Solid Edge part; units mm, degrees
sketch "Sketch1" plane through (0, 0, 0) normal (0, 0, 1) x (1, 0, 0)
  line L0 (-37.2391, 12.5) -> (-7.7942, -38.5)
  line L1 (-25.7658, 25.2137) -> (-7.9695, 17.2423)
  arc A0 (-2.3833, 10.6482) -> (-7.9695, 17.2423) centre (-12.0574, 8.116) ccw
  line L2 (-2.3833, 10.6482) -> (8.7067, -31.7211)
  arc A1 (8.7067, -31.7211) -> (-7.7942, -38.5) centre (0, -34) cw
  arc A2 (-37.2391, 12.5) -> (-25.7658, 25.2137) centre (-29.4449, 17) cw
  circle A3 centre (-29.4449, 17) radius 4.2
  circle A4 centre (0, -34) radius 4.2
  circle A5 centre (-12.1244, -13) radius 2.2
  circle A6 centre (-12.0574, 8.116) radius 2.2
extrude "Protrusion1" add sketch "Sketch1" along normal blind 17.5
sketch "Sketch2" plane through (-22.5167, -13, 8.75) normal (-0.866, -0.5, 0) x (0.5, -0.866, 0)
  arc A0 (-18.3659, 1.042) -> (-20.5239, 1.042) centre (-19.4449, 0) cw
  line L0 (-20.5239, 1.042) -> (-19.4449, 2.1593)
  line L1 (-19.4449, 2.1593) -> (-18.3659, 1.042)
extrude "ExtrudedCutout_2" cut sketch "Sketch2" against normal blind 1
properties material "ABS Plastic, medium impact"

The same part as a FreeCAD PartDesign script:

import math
import FreeCAD as App
import Part
import Sketcher
from FreeCAD import Vector
Q = App.Units.Quantity

doc = App.newDocument("Part")
params = doc.addObject("Spreadsheet::Sheet", "Params")
for row, (alias, value) in enumerate([
    ("sketch1_radius", "9 mm"),
    ("sketch1_radius2", "10 mm"),
    ("sketch1_diameter", "8.4 mm"),
    ("sketch1_diameter2", "4.4 mm"),
    ("sketch1_length", "19.5 mm"),
    ("pad1_length", "17.5 mm"),
    ("sketch2_radius", "1.5 mm"),
    ("pocket1_length", "1 mm"),
], start=1):
    params.set(f"A{row}", alias)
    params.set(f"B{row}", "=" + value)
    params.setAlias(f"B{row}", alias)

body = doc.addObject("PartDesign::Body", "Body")

sketch1 = doc.addObject("Sketcher::SketchObject", "Sketch")
body.addObject(sketch1)
sketch1.AttachmentSupport = (doc.XY_Plane, [""])
sketch1.MapMode = "FlatFace"
sketch1.addGeometry([
    Part.ArcOfCircle(Part.Circle(Vector(-29.4, 17, 0), Vector(0, 0, 1), 9), math.radians(66), math.radians(210)),
    Part.LineSegment(Vector(-37.2, 12.5, 0), Vector(-7.8, -38.5, 0)),
    Part.ArcOfCircle(Part.Circle(Vector(0, -34, 0), Vector(0, 0, 1), 9), math.radians(-150), math.radians(15)),
    Part.LineSegment(Vector(8.7, -31.7, 0), Vector(-2.4, 10.6, 0)),
    Part.ArcOfCircle(Part.Circle(Vector(-12.1, 8.1, 0), Vector(0, 0, 1), 10), math.radians(15), math.radians(66)),
    Part.LineSegment(Vector(-8, 17.2, 0), Vector(-25.8, 25.2, 0)),
    Part.Circle(Vector(0, -34, 0), Vector(0, 0, 1), 4.2),
    Part.Circle(Vector(-12.1, -13, 0), Vector(0, 0, 1), 2.2),
    Part.Circle(Vector(-29.4, 17, 0), Vector(0, 0, 1), 4.2),
    Part.Circle(Vector(-12.1, 8.1, 0), Vector(0, 0, 1), 2.2),
], False)
sketch1.addConstraint([
    Sketcher.Constraint("Tangent", 0, 2, 1, 1),
    Sketcher.Constraint("Tangent", 1, 2, 2, 1),
    Sketcher.Constraint("Tangent", 2, 2, 3, 1),
    Sketcher.Constraint("Tangent", 3, 2, 4, 1),
    Sketcher.Constraint("Tangent", 4, 2, 5, 1),
    Sketcher.Constraint("Tangent", 5, 2, 0, 1),
    Sketcher.Constraint("Coincident", 6, 3, 2, 3),
    Sketcher.Constraint("Coincident", 8, 3, 0, 3),
    Sketcher.Constraint("Coincident", 9, 3, 4, 3),
    Sketcher.Constraint("Equal", 0, 2),
    Sketcher.Constraint("Equal", 6, 8),
    Sketcher.Constraint("Equal", 7, 9),
    Sketcher.Constraint("PointOnObject", 2, 3, -2),
    Sketcher.Constraint("Radius", 0, Q("9 mm")),
    Sketcher.Constraint("Radius", 4, Q("10 mm")),
    Sketcher.Constraint("Diameter", 6, Q("8.4 mm")),
    Sketcher.Constraint("Diameter", 7, Q("4.4 mm")),
    Sketcher.Constraint("Angle", 1, Q("-60 deg")),
    Sketcher.Constraint("DistanceY", -1, 1, 0, 3, Q("17 mm")),
    Sketcher.Constraint("DistanceY", 2, 3, -1, 1, Q("34 mm")),
    Sketcher.Constraint("DistanceY", 7, 3, -1, 1, Q("13 mm")),
    Sketcher.Constraint("Distance", 5, Q("19.5 mm")),
    Sketcher.Constraint("DistanceY", -1, 1, 4, 3, Q("8.116 mm")),
    Sketcher.Constraint("DistanceX", 7, 3, 4, 3, Q("0.067 mm")),
])
sketch1.setExpression("Constraints[13]", "Params.sketch1_radius")
sketch1.setExpression("Constraints[14]", "Params.sketch1_radius2")
sketch1.setExpression("Constraints[15]", "Params.sketch1_diameter")
sketch1.setExpression("Constraints[16]", "Params.sketch1_diameter2")
sketch1.setExpression("Constraints[21]", "Params.sketch1_length")
pad1 = doc.addObject("PartDesign::Pad", "Pad")
body.addObject(pad1)
pad1.Profile = sketch1
pad1.setExpression("Length", "Params.pad1_length")

sketch2 = doc.addObject("Sketcher::SketchObject", "Sketch001")
body.addObject(sketch2)
sketch2.Placement = App.Placement(Vector(-22.5167, -13, 8.75), App.Rotation(Vector(0.5, -0.866025404, 0), Vector(0, 0, 1), Vector(-0.866025404, -0.5, 0), "ZXY"))
sketch2.addGeometry([
    Part.ArcOfCircle(Part.Circle(Vector(-19.4, 0, 0), Vector(0, 0, 1), 1.5), math.radians(136), math.radians(404)),
    Part.LineSegment(Vector(-18.4, 1, 0), Vector(-19.4, 2.2, 0)),
    Part.LineSegment(Vector(-19.4, 2.2, 0), Vector(-20.5, 1, 0)),
], False)
sketch2.addConstraint([
    Sketcher.Constraint("Tangent", 0, 2, 1, 1),
    Sketcher.Constraint("Coincident", 1, 2, 2, 1),
    Sketcher.Constraint("Tangent", 2, 2, 0, 1),
    Sketcher.Constraint("PointOnObject", 0, 3, -1),
    Sketcher.Constraint("Horizontal", 0, 2, 2, 2),
    Sketcher.Constraint("Radius", 0, Q("1.5 mm")),
    Sketcher.Constraint("Angle", 1, Q("134.001 deg")),
    Sketcher.Constraint("DistanceX", 0, 3, -1, 1, Q("19.445 mm")),
])
sketch2.setExpression("Constraints[5]", "Params.sketch2_radius")
pocket1 = doc.addObject("PartDesign::Pocket", "Pocket")
body.addObject(pocket1)
pocket1.Profile = sketch2
pocket1.setExpression("Length", "Params.pocket1_length")

doc.recompute()
